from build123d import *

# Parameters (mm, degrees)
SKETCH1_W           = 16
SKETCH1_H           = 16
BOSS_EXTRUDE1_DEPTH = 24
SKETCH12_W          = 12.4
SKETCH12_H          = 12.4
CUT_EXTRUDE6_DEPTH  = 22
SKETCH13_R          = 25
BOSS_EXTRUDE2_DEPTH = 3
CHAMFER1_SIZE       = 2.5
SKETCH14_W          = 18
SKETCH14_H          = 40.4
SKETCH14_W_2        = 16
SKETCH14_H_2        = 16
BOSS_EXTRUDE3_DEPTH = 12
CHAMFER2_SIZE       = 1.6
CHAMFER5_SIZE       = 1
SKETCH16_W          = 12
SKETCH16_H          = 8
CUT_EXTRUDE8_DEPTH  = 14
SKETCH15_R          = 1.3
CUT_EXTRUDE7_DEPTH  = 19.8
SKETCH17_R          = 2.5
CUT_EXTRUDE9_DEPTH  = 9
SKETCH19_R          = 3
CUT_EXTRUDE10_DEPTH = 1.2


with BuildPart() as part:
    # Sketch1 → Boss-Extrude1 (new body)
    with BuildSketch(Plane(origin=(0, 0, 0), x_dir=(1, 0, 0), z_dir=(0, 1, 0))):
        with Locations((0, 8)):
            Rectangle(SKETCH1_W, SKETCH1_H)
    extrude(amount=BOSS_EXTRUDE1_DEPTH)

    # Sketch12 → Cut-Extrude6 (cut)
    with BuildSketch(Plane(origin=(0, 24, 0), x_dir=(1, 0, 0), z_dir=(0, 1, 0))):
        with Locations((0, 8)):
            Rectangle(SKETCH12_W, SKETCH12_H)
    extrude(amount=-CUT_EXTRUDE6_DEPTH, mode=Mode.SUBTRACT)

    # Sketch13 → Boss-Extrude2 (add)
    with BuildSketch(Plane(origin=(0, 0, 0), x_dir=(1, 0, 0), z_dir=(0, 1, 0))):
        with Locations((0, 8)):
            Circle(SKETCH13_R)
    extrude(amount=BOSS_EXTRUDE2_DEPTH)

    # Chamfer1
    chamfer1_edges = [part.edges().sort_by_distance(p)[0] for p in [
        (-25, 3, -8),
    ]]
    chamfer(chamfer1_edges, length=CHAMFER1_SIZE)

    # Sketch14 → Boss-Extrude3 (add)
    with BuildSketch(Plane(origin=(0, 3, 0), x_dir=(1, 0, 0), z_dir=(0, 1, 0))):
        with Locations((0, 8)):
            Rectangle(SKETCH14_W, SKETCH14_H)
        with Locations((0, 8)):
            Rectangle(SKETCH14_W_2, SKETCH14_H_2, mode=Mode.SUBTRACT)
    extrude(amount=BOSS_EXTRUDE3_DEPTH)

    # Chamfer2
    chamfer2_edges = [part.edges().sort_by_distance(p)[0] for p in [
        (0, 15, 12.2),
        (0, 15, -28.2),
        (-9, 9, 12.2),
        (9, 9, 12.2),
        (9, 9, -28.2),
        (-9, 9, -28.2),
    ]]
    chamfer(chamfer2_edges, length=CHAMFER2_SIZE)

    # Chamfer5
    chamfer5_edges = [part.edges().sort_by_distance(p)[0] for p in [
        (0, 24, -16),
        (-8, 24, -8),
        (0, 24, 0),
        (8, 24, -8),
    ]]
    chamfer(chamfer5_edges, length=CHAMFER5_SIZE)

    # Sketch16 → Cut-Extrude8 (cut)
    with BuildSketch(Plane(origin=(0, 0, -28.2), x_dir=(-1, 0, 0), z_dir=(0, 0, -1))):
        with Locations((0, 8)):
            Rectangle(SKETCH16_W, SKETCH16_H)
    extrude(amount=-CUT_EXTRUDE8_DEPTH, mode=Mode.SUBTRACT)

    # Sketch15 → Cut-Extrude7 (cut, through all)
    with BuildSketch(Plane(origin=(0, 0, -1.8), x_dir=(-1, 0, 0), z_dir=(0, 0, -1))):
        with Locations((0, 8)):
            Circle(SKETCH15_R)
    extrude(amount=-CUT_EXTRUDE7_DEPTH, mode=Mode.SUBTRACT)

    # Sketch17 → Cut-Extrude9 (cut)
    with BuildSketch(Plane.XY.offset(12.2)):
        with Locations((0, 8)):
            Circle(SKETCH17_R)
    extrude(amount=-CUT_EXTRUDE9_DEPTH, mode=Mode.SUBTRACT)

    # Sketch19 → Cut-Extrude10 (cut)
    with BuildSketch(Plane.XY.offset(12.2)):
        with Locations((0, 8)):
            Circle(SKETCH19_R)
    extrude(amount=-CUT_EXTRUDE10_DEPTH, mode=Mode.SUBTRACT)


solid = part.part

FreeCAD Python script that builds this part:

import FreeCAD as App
import Part
import Sketcher
from FreeCAD import Vector


def edges_at(feature, points):
    """Names of the edges that pass closest to the given points."""
    edges = feature.Shape.Edges
    near = lambda p: min(range(len(edges)), key=lambda i: edges[i].distToShape(Part.Vertex(*p))[0])
    return sorted({f"Edge{near(p) + 1}" for p in points})


def add_polygon(sketch, points):
    """Adds a closed chain of lines whose ends are joined by coincident constraints."""
    first, n = sketch.GeometryCount, len(points)
    for a, b in zip(points, points[1:] + points[:1]):
        sketch.addGeometry(Part.LineSegment(App.Vector(*a, 0), App.Vector(*b, 0)), False)
    for i in range(n):
        sketch.addConstraint(Sketcher.Constraint("Coincident", first + i, 2, first + (i + 1) % n, 1))

doc = App.newDocument("Part")
body = doc.addObject("PartDesign::Body", "Body")

sketch1 = body.newObject("Sketcher::SketchObject", "Sketch")
sketch1.AttachmentSupport = (doc.getObject("XZ_Plane"), [""])
sketch1.MapMode = "FlatFace"
add_polygon(sketch1, [(-8, -16), (-8, 0), (8, 0), (8, -16)])
sketch1.addConstraint([
    Sketcher.Constraint("Vertical", 0),
    Sketcher.Constraint("Horizontal", 1),
    Sketcher.Constraint("Vertical", 2),
    Sketcher.Constraint("Horizontal", 3),
    Sketcher.Constraint("Symmetric", 0, 2, 1, 2, -1, 1),
    Sketcher.Constraint("Equal", 3, 0),
    Sketcher.Constraint("DistanceX", 1, 1, 1, 2, 16.0),
])
pad1 = body.newObject("PartDesign::Pad", "Pad")
pad1.Profile = sketch1
pad1.Length = 24
pad1.Reversed = True

sketch2 = body.newObject("Sketcher::SketchObject", "Sketch001")
sketch2.AttachmentSupport = (doc.getObject("XZ_Plane"), [""])
sketch2.MapMode = "FlatFace"
sketch2.AttachmentOffset = App.Placement(Vector(0, 0, -24), App.Rotation())
add_polygon(sketch2, [(-6.2, -14.2), (-6.2, -1.8), (6.2, -1.8), (6.2, -14.2)])
sketch2.addConstraint([
    Sketcher.Constraint("Vertical", 0),
    Sketcher.Constraint("Horizontal", 1),
    Sketcher.Constraint("Vertical", 2),
    Sketcher.Constraint("Horizontal", 3),
    Sketcher.Constraint("Equal", 3, 0),
    Sketcher.Constraint("DistanceX", 1, 1, 1, 2, 12.4),
    Sketcher.Constraint("DistanceX", 0, 2, -1, 1, 6.2),
    Sketcher.Constraint("DistanceY", 0, 2, -1, 1, 1.8),
])
pocket1 = body.newObject("PartDesign::Pocket", "Pocket")
pocket1.Profile = sketch2
pocket1.Length = 22
pocket1.Reversed = True

sketch3 = body.newObject("Sketcher::SketchObject", "Sketch002")
sketch3.AttachmentSupport = (doc.getObject("XZ_Plane"), [""])
sketch3.MapMode = "FlatFace"
sketch3.addGeometry(Part.Circle(Vector(0, -8, 0), Vector(0, 0, 1), 25), False)
sketch3.addConstraint([
    Sketcher.Constraint("PointOnObject", 0, 3, -2),
    Sketcher.Constraint("Diameter", 0, 50.0),
    Sketcher.Constraint("DistanceY", 0, 3, -1, 1, 8.0),
])
pad2 = body.newObject("PartDesign::Pad", "Pad001")
pad2.Profile = sketch3
pad2.Length = 3
pad2.Reversed = True
doc.recompute()

chamfer = body.newObject("PartDesign::Chamfer", "Chamfer")
chamfer.Base = (pad2, edges_at(pad2, [(-25, 3, -8)]))
chamfer.Size = 2.5

sketch4 = body.newObject("Sketcher::SketchObject", "Sketch003")
sketch4.AttachmentSupport = (doc.getObject("XZ_Plane"), [""])
sketch4.MapMode = "FlatFace"
sketch4.AttachmentOffset = App.Placement(Vector(0, 0, -3), App.Rotation())
add_polygon(sketch4, [(-9, -28.2), (-9, 12.2), (9, 12.2), (9, -28.2)])
add_polygon(sketch4, [(8, 0), (-8, 0), (-8, -16), (8, -16)])
sketch4.addConstraint([
    Sketcher.Constraint("Vertical", 0),
    Sketcher.Constraint("Horizontal", 1),
    Sketcher.Constraint("Vertical", 2),
    Sketcher.Constraint("Horizontal", 3),
    Sketcher.Constraint("Horizontal", 4),
    Sketcher.Constraint("Vertical", 5),
    Sketcher.Constraint("Horizontal", 6),
    Sketcher.Constraint("Vertical", 7),
    Sketcher.Constraint("Symmetric", 4, 2, 7, 2, -1, 1),
    Sketcher.Constraint("Equal", 6, 5),
    Sketcher.Constraint("DistanceX", 1, 1, 1, 2, 18.0),
    Sketcher.Constraint("DistanceX", 4, 2, 4, 1, 16.0),
    Sketcher.Constraint("DistanceY", 0, 1, 0, 2, 40.4),
    Sketcher.Constraint("DistanceX", 0, 2, -1, 1, 9.0),
    Sketcher.Constraint("DistanceY", -1, 1, 0, 2, 12.2),
])
pad3 = body.newObject("PartDesign::Pad", "Pad002")
pad3.Profile = sketch4
pad3.Length = 12
pad3.Reversed = True
doc.recompute()

chamfer2 = body.newObject("PartDesign::Chamfer", "Chamfer001")
chamfer2.Base = (pad3, edges_at(pad3, [
    (0, 15, 12.2),
    (0, 15, -28.2),
    (-9, 9, 12.2),
    (9, 9, 12.2),
    (9, 9, -28.2),
    (-9, 9, -28.2),
]))
chamfer2.Size = 1.6
doc.recompute()

chamfer3 = body.newObject("PartDesign::Chamfer", "Chamfer002")
chamfer3.Base = (chamfer2, edges_at(chamfer2, [
    (0, 24, -16),
    (-8, 24, -8),
    (0, 24, 0),
    (8, 24, -8),
]))
chamfer3.Size = 1

sketch5 = body.newObject("Sketcher::SketchObject", "Sketch004")
sketch5.AttachmentSupport = (doc.getObject("XY_Plane"), [""])
sketch5.MapMode = "FlatFace"
sketch5.AttachmentOffset = App.Placement(Vector(0, 0, -28.2), App.Rotation())
add_polygon(sketch5, [(6, 12), (6, 4), (-6, 4), (-6, 12)])
sketch5.addConstraint([
    Sketcher.Constraint("Vertical", 0),
    Sketcher.Constraint("Horizontal", 1),
    Sketcher.Constraint("Vertical", 2),
    Sketcher.Constraint("Horizontal", 3),
    Sketcher.Constraint("DistanceX", 1, 2, 1, 1, 12.0),
    Sketcher.Constraint("DistanceY", 0, 2, 0, 1, 8.0),
    Sketcher.Constraint("DistanceX", -1, 1, 0, 2, 6.0),
    Sketcher.Constraint("DistanceY", -1, 1, 0, 2, 4.0),
])
pocket2 = body.newObject("PartDesign::Pocket", "Pocket001")
pocket2.Profile = sketch5
pocket2.Length = 14
pocket2.Reversed = True

sketch6 = body.newObject("Sketcher::SketchObject", "Sketch005")
sketch6.AttachmentSupport = (doc.getObject("XY_Plane"), [""])
sketch6.MapMode = "FlatFace"
sketch6.AttachmentOffset = App.Placement(Vector(0, 0, -1.8), App.Rotation())
sketch6.addGeometry(Part.Circle(Vector(0, 8, 0), Vector(0, 0, 1), 1.3), False)
sketch6.addConstraint([
    Sketcher.Constraint("PointOnObject", 0, 3, -2),
    Sketcher.Constraint("Diameter", 0, 2.6),
    Sketcher.Constraint("DistanceY", -1, 1, 0, 3, 8.0),
])
pocket3 = body.newObject("PartDesign::Pocket", "Pocket002")
pocket3.Profile = sketch6
pocket3.Type = "ThroughAll"
pocket3.Reversed = True

sketch7 = body.newObject("Sketcher::SketchObject", "Sketch006")
sketch7.AttachmentSupport = (doc.getObject("XY_Plane"), [""])
sketch7.MapMode = "FlatFace"
sketch7.AttachmentOffset = App.Placement(Vector(0, 0, 12.2), App.Rotation())
sketch7.addGeometry(Part.Circle(Vector(0, 8, 0), Vector(0, 0, 1), 2.5), False)
sketch7.addConstraint([
    Sketcher.Constraint("PointOnObject", 0, 3, -2),
    Sketcher.Constraint("Diameter", 0, 5.0),
    Sketcher.Constraint("DistanceY", -1, 1, 0, 3, 8.0),
])
pocket4 = body.newObject("PartDesign::Pocket", "Pocket003")
pocket4.Profile = sketch7
pocket4.Length = 9

sketch8 = body.newObject("Sketcher::SketchObject", "Sketch007")
sketch8.AttachmentSupport = (doc.getObject("XY_Plane"), [""])
sketch8.MapMode = "FlatFace"
sketch8.AttachmentOffset = App.Placement(Vector(0, 0, 12.2), App.Rotation())
sketch8.addGeometry(Part.Circle(Vector(0, 8, 0), Vector(0, 0, 1), 3), False)
sketch8.addConstraint([
    Sketcher.Constraint("PointOnObject", 0, 3, -2),
    Sketcher.Constraint("Diameter", 0, 6.0),
    Sketcher.Constraint("DistanceY", -1, 1, 0, 3, 8.0),
])
pocket5 = body.newObject("PartDesign::Pocket", "Pocket004")
pocket5.Profile = sketch8
pocket5.Length = 1.2

doc.recompute()
